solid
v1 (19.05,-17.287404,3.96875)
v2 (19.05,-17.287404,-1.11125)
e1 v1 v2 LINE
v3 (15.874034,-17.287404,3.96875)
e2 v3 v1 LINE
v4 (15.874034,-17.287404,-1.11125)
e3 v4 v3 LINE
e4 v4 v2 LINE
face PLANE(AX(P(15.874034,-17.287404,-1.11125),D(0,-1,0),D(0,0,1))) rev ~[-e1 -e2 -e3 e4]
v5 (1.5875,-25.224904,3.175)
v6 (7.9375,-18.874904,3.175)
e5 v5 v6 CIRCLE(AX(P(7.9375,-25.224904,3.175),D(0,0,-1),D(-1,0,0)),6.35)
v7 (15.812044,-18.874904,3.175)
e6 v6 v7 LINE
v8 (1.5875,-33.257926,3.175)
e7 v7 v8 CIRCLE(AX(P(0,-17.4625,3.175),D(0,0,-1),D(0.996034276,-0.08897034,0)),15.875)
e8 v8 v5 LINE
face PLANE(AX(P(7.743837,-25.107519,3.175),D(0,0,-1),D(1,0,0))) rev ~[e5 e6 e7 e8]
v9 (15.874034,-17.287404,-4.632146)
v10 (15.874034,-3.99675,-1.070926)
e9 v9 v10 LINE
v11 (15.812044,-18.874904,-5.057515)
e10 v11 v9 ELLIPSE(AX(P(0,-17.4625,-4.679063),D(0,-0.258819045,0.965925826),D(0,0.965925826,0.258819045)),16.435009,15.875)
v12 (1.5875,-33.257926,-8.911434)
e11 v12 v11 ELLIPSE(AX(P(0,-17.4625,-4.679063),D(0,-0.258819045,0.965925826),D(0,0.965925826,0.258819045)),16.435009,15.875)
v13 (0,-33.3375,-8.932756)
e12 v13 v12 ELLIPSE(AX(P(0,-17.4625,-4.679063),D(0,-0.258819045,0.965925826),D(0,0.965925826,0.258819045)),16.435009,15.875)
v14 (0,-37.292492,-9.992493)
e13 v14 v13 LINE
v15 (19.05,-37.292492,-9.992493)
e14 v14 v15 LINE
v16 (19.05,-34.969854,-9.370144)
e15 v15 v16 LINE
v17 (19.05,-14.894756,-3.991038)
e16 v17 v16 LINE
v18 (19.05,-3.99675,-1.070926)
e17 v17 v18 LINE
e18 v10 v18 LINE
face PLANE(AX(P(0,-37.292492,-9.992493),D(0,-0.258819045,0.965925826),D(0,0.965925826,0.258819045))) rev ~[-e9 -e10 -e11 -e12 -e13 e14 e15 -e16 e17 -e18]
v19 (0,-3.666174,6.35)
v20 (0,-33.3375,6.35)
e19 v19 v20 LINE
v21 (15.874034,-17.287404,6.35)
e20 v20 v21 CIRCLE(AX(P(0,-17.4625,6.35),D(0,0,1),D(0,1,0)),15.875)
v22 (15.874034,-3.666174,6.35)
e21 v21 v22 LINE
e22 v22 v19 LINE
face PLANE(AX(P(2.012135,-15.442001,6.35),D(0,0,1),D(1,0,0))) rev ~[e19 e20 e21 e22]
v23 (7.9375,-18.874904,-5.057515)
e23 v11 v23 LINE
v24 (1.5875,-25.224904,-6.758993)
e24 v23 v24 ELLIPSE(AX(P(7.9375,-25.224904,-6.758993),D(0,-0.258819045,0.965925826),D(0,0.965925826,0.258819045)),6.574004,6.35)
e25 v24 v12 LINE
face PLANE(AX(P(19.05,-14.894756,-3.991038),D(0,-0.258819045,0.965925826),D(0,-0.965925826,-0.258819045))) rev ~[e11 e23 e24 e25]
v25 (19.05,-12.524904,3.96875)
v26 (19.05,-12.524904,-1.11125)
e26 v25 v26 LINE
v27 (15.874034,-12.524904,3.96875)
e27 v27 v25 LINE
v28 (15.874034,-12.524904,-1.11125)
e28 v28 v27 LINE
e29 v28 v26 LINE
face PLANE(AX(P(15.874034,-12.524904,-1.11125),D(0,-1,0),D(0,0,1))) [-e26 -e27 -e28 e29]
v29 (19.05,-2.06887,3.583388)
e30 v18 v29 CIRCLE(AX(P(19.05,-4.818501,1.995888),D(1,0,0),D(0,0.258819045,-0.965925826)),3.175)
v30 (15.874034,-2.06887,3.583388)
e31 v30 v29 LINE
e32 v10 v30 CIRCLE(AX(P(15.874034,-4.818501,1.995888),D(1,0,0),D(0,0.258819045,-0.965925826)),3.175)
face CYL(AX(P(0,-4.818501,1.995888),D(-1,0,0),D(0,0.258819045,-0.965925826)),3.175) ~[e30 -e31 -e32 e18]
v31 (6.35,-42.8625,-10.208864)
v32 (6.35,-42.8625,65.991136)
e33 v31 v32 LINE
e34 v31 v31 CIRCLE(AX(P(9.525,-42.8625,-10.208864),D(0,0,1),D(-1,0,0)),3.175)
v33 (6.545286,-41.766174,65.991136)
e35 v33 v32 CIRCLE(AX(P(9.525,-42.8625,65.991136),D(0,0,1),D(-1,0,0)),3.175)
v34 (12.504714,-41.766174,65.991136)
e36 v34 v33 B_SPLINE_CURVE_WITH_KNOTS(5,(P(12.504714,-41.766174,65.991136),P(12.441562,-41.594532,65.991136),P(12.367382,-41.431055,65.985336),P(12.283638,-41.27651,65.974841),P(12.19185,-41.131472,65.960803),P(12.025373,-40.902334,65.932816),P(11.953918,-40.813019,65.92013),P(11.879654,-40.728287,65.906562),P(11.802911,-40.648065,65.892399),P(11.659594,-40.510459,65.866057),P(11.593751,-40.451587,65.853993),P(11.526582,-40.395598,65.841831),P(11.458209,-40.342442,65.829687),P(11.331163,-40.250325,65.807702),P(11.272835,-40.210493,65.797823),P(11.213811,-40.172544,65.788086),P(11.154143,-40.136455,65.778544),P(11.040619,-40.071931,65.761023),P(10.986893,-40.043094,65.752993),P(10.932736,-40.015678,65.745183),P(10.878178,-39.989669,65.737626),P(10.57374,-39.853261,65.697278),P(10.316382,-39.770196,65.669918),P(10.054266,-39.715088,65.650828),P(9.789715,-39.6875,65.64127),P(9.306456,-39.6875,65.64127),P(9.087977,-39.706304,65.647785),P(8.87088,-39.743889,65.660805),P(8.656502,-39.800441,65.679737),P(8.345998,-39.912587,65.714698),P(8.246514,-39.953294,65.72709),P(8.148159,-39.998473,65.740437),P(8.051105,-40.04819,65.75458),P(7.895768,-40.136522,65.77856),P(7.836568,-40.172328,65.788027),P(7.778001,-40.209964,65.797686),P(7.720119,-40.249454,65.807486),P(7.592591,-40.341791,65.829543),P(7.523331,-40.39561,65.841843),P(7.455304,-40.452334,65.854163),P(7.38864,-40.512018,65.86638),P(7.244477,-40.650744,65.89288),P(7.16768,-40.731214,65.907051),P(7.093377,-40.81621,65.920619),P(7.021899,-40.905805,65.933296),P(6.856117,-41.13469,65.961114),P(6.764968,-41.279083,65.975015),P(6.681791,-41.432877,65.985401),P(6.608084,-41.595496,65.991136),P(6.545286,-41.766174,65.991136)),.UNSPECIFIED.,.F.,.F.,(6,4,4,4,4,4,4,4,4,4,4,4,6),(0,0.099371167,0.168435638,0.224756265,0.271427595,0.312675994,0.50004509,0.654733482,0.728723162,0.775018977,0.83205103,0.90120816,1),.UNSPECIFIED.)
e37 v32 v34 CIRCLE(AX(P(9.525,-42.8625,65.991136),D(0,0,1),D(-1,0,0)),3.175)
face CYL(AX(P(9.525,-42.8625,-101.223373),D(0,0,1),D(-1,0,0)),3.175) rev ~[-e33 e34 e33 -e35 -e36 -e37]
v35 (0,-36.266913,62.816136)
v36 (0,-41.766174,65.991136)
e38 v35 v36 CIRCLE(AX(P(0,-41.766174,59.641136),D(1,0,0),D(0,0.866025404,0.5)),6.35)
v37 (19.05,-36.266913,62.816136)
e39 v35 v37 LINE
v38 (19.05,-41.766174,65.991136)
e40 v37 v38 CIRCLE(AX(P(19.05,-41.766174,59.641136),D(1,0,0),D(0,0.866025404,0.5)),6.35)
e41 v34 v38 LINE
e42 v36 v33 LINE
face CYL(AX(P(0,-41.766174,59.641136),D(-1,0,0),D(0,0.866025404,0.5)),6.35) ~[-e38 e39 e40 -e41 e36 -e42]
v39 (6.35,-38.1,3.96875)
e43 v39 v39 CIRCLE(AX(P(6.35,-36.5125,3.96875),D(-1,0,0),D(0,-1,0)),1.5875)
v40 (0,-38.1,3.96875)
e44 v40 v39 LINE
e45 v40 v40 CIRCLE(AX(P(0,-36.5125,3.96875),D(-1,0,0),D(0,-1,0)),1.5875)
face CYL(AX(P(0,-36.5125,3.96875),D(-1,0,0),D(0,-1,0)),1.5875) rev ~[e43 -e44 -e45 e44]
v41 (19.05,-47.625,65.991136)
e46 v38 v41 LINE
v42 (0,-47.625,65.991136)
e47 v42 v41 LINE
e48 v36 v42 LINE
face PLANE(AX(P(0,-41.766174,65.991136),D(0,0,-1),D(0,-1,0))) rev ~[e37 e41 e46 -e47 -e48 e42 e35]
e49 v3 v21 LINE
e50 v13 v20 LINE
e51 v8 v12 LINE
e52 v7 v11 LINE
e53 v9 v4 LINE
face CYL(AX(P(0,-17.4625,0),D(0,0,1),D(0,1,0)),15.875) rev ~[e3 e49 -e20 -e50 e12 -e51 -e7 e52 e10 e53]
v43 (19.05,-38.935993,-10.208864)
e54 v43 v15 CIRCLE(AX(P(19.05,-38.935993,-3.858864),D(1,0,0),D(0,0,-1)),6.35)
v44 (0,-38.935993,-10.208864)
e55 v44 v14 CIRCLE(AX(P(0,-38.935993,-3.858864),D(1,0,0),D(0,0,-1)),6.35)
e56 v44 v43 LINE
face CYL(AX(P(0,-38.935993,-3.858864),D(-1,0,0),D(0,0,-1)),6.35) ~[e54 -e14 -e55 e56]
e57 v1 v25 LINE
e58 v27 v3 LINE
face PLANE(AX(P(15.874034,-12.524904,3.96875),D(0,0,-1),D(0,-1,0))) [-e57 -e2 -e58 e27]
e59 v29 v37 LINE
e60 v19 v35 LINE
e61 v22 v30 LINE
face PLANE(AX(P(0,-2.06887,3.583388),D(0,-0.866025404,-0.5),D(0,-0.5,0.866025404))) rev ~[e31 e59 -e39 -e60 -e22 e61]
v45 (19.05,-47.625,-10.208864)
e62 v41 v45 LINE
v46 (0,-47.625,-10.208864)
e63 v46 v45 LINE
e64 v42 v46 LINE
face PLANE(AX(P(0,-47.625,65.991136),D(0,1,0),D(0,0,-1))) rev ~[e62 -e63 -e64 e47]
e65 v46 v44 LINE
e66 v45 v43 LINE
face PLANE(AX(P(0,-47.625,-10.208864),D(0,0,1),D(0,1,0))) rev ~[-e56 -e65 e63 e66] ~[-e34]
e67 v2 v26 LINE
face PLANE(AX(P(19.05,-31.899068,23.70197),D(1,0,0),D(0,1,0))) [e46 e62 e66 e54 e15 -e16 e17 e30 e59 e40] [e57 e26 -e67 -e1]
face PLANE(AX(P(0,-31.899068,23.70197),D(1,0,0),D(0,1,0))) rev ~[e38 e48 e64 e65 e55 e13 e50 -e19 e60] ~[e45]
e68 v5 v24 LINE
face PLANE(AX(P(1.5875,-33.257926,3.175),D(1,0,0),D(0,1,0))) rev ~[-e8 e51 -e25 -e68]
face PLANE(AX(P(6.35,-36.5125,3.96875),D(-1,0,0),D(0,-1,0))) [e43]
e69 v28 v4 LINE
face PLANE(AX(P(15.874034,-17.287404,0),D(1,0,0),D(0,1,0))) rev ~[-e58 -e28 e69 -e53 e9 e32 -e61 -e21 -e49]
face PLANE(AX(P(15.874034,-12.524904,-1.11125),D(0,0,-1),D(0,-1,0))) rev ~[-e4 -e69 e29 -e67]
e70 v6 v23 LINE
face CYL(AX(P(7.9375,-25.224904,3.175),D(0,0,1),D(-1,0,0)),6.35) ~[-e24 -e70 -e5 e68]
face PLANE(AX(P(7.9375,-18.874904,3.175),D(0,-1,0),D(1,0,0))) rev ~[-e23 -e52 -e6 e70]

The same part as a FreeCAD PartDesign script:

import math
import FreeCAD as App
import Part
import Sketcher
Q = App.Units.Quantity


def add_polygon(sketch, points):
    """Adds a closed chain of lines whose ends are joined by coincident constraints."""
    first, n = sketch.GeometryCount, len(points)
    for a, b in zip(points, points[1:] + points[:1]):
        sketch.addGeometry(Part.LineSegment(App.Vector(*a, 0), App.Vector(*b, 0)), False)
    for i in range(n):
        sketch.addConstraint(Sketcher.Constraint("Coincident", first + i, 2, first + (i + 1) % n, 1))

doc = App.newDocument("Part")
body = doc.addObject("PartDesign::Body", "Body")

sketch1 = body.newObject("Sketcher::SketchObject", "Sketch")
sketch1.AttachmentSupport = (doc.getObject("YZ_Plane"), [""])
sketch1.MapMode = "FlatFace"
sketch1.addGeometry([
    Part.ArcOfCircle(Part.Circle(App.Vector(-4.818501, 1.995888, 0), App.Vector(0, 0, 1), 3.175), math.radians(-75), math.radians(30)),
    Part.LineSegment(App.Vector(-2.06887, 3.583388, 0), App.Vector(-36.266913, 62.816136, 0)),
    Part.ArcOfCircle(Part.Circle(App.Vector(-41.766174, 59.641136, 0), App.Vector(0, 0, 1), 6.35), math.radians(30), math.radians(90)),
    Part.LineSegment(App.Vector(-41.766174, 65.991136, 0), App.Vector(-47.625, 65.991136, 0)),
    Part.LineSegment(App.Vector(-47.625, 65.991136, 0), App.Vector(-47.625, -10.208864, 0)),
    Part.LineSegment(App.Vector(-47.625, -10.208864, 0), App.Vector(-38.935993, -10.208864, 0)),
    Part.ArcOfCircle(Part.Circle(App.Vector(-38.935993, -3.858864, 0), App.Vector(0, 0, 1), 6.35), math.radians(-90), math.radians(-75)),
    Part.LineSegment(App.Vector(-37.292492, -9.992493, 0), App.Vector(-3.99675, -1.070926, 0)),
], False)
sketch1.addConstraint([
    Sketcher.Constraint("Tangent", 0, 2, 1, 1),
    Sketcher.Constraint("Tangent", 1, 2, 2, 1),
    Sketcher.Constraint("Tangent", 2, 2, 3, 1),
    Sketcher.Constraint("Coincident", 3, 2, 4, 1),
    Sketcher.Constraint("Coincident", 4, 2, 5, 1),
    Sketcher.Constraint("Tangent", 5, 2, 6, 1),
    Sketcher.Constraint("Tangent", 6, 2, 7, 1),
    Sketcher.Constraint("Tangent", 7, 2, 0, 1),
    Sketcher.Constraint("Horizontal", 3),
    Sketcher.Constraint("Vertical", 4),
    Sketcher.Constraint("Horizontal", 5),
    Sketcher.Constraint("Equal", 2, 6),
    Sketcher.Constraint("DistanceY", 4, 2, 4, 1, Q("3 in")),
    Sketcher.Constraint("Radius", 2, Q("0.25 in")),
    Sketcher.Constraint("Angle", 1, Q("120 deg")),
    Sketcher.Constraint("Angle", 7, Q("15 deg")),
    Sketcher.Constraint("Radius", 0, Q("0.125 in")),
    Sketcher.Constraint("DistanceX", 3, 2, -1, 1, Q("1.875 in")),
    Sketcher.Constraint("DistanceX", 0, 3, -1, 1, 4.818501),
    Sketcher.Constraint("Distance", 7, 34.470289),
    Sketcher.Constraint("DistanceY", -1, 1, 0, 3, 1.995888),
])
pad1 = body.newObject("PartDesign::Pad", "Pad")
pad1.Profile = sketch1
pad1.Length = Q("0.75 in")

sketch2 = body.newObject("Sketcher::SketchObject", "Sketch001")
sketch2.AttachmentSupport = (doc.getObject("XY_Plane"), [""])
sketch2.MapMode = "FlatFace"
sketch2.AttachmentOffset = App.Placement(App.Vector(0, 0, -10.208864), App.Rotation())
sketch2.addGeometry(Part.Circle(App.Vector(9.525, -42.8625, 0), App.Vector(0, 0, 1), 3.175), False)
sketch2.addConstraint([
    Sketcher.Constraint("Diameter", 0, Q("0.25 in")),
    Sketcher.Constraint("DistanceX", -1, 1, 0, 3, Q("0.375 in")),
    Sketcher.Constraint("DistanceY", 0, 3, -1, 1, Q("1.6875 in")),
])
doc.recompute()
hole = body.newObject("PartDesign::Hole", "Hole")
hole.Profile = sketch2
hole.ThreadType = "None"
hole.Diameter = Q("0.25 in")
hole.DepthType = "ThroughAll"
hole.Reversed = True

sketch3 = body.newObject("Sketcher::SketchObject", "Sketch002")
sketch3.AttachmentSupport = (doc.getObject("XY_Plane"), [""])
sketch3.MapMode = "FlatFace"
sketch3.addGeometry([
    Part.LineSegment(App.Vector(15.874034, -1.5875, 0), App.Vector(0, -1.5875, 0)),
    Part.ArcOfCircle(Part.Circle(App.Vector(0, -17.4625, 0), App.Vector(0, 0, 1), 15.875), math.radians(90), math.radians(360.631966)),
    Part.LineSegment(App.Vector(15.874034, -17.287404, 0), App.Vector(15.874034, -1.5875, 0)),
], False)
sketch3.addConstraint([
    Sketcher.Constraint("Tangent", 0, 2, 1, 1),
    Sketcher.Constraint("Coincident", 1, 2, 2, 1),
    Sketcher.Constraint("Coincident", 2, 2, 0, 1),
    Sketcher.Constraint("Horizontal", 0),
    Sketcher.Constraint("Vertical", 2),
    Sketcher.Constraint("PointOnObject", 1, 3, -2),
    Sketcher.Constraint("Radius", 1, Q("0.625 in")),
    Sketcher.Constraint("DistanceY", 1, 3, -1, 1, Q("0.6875 in")),
    Sketcher.Constraint("DistanceX", 0, 2, 0, 1, 15.874034),
])
pocket1 = body.newObject("PartDesign::Pocket", "Pocket")
pocket1.Profile = sketch3
pocket1.Type = "TwoLengths"
pocket1.Length = Q("0.25 in")
pocket1.Length2 = 10.209864
pocket1.Reversed = True

sketch4 = body.newObject("Sketcher::SketchObject", "Sketch003")
sketch4.AttachmentSupport = (doc.getObject("YZ_Plane"), [""])
sketch4.MapMode = "FlatFace"
sketch4.AttachmentOffset = App.Placement(App.Vector(0, 0, 15.874034), App.Rotation())
add_polygon(sketch4, [(-12.524904, 3.96875), (-12.524904, -1.11125), (-17.287404, -1.11125), (-17.287404, 3.96875)])
sketch4.addConstraint([
    Sketcher.Constraint("Vertical", 0),
    Sketcher.Constraint("Horizontal", 1),
    Sketcher.Constraint("Vertical", 2),
    Sketcher.Constraint("Horizontal", 3),
    Sketcher.Constraint("DistanceY", 0, 2, 0, 1, Q("0.2 in")),
    Sketcher.Constraint("DistanceX", 1, 2, 1, 1, Q("0.1875 in")),
    Sketcher.Constraint("DistanceY", -1, 1, 2, 2, Q("0.15625 in")),
    Sketcher.Constraint("DistanceX", 0, 2, -1, 1, 12.524904),
])
pocket2 = body.newObject("PartDesign::Pocket", "Pocket001")
pocket2.Profile = sketch4
pocket2.Length = Q("1 in")
pocket2.Reversed = True

sketch5 = body.newObject("Sketcher::SketchObject", "Sketch004")
sketch5.AttachmentSupport = (doc.getObject("YZ_Plane"), [""])
sketch5.MapMode = "FlatFace"
sketch5.addGeometry(Part.Circle(App.Vector(-36.5125, 3.96875, 0), App.Vector(0, 0, 1), 1.5875), False)
sketch5.addConstraint([
    Sketcher.Constraint("Diameter", 0, Q("0.125 in")),
    Sketcher.Constraint("DistanceX", 0, 3, -1, 1, Q("1.4375 in")),
    Sketcher.Constraint("DistanceY", -1, 1, 0, 3, Q("0.15625 in")),
])
pocket3 = body.newObject("PartDesign::Pocket", "Pocket002")
pocket3.Profile = sketch5
pocket3.Length = Q("0.25 in")
pocket3.Reversed = True

sketch6 = body.newObject("Sketcher::SketchObject", "Sketch005")
sketch6.AttachmentSupport = (doc.getObject("XY_Plane"), [""])
sketch6.MapMode = "FlatFace"
sketch6.AttachmentOffset = App.Placement(App.Vector(0, 0, 0.125 * 25.4), App.Rotation())
sketch6.addGeometry([
    Part.ArcOfCircle(Part.Circle(App.Vector(7.9375, -25.224904, 0), App.Vector(0, 0, 1), 6.35), math.radians(90), math.radians(180)),
    Part.LineSegment(App.Vector(7.9375, -18.874904, 0), App.Vector(15.812044, -18.874904, 0)),
    Part.ArcOfCircle(Part.Circle(App.Vector(0, -17.4625, 0), App.Vector(0, 0, 1), 15.875), math.radians(-84.26083), math.radians(-5.104374)),
    Part.LineSegment(App.Vector(1.5875, -33.257926, 0), App.Vector(1.5875, -25.224904, 0)),
], False)
sketch6.addConstraint([
    Sketcher.Constraint("Tangent", 0, 1, 1, 1),
    Sketcher.Constraint("Coincident", 1, 2, 2, 2),
    Sketcher.Constraint("Coincident", 2, 1, 3, 1),
    Sketcher.Constraint("Tangent", 3, 2, 0, 2),
    Sketcher.Constraint("Horizontal", 1),
    Sketcher.Constraint("Vertical", 3),
    Sketcher.Constraint("PointOnObject", 2, 3, -2),
    Sketcher.Constraint("Radius", 0, Q("0.25 in")),
    Sketcher.Constraint("Radius", 2, Q("0.625 in")),
    Sketcher.Constraint("DistanceX", -1, 1, 0, 3, Q("0.3125 in")),
    Sketcher.Constraint("DistanceY", 2, 3, -1, 1, Q("0.6875 in")),
    Sketcher.Constraint("DistanceY", 3, 1, 3, 2, 8.033021),
])
pad2 = body.newObject("PartDesign::Pad", "Pad001")
pad2.Profile = sketch6
pad2.Length = Q("0.625 in")
pad2.Reversed = True

sketch7 = body.newObject("Sketcher::SketchObject", "Sketch006")
sketch7.AttachmentSupport = (doc.getObject("YZ_Plane"), [""])
sketch7.MapMode = "FlatFace"
sketch7.AttachmentOffset = App.Placement(App.Vector(0, 0, 0.75 * 25.4), App.Rotation())
add_polygon(sketch7, [(-14.894756, -3.991038), (-34.969854, -9.370144), (-35.400342, -17.254913), (-14.894756, -17.254913)])
sketch7.addConstraint([
    Sketcher.Constraint("Horizontal", 2),
    Sketcher.Constraint("Vertical", 3),
    Sketcher.Constraint("Angle", 0, Q("-165 deg")),
    Sketcher.Constraint("DistanceY", 3, 1, 3, 2, Q("0.5221998 in")),
    Sketcher.Constraint("DistanceX", 0, 2, 2, 2, 20.075099),
    Sketcher.Constraint("Distance", 1, 7.896512),
    Sketcher.Constraint("DistanceX", 0, 2, -1, 1, 34.969854),
    Sketcher.Constraint("DistanceY", 0, 2, -1, 1, 9.370144),
])
pocket4 = body.newObject("PartDesign::Pocket", "Pocket003")
pocket4.Profile = sketch7
pocket4.Type = "ThroughAll"

doc.recompute()
